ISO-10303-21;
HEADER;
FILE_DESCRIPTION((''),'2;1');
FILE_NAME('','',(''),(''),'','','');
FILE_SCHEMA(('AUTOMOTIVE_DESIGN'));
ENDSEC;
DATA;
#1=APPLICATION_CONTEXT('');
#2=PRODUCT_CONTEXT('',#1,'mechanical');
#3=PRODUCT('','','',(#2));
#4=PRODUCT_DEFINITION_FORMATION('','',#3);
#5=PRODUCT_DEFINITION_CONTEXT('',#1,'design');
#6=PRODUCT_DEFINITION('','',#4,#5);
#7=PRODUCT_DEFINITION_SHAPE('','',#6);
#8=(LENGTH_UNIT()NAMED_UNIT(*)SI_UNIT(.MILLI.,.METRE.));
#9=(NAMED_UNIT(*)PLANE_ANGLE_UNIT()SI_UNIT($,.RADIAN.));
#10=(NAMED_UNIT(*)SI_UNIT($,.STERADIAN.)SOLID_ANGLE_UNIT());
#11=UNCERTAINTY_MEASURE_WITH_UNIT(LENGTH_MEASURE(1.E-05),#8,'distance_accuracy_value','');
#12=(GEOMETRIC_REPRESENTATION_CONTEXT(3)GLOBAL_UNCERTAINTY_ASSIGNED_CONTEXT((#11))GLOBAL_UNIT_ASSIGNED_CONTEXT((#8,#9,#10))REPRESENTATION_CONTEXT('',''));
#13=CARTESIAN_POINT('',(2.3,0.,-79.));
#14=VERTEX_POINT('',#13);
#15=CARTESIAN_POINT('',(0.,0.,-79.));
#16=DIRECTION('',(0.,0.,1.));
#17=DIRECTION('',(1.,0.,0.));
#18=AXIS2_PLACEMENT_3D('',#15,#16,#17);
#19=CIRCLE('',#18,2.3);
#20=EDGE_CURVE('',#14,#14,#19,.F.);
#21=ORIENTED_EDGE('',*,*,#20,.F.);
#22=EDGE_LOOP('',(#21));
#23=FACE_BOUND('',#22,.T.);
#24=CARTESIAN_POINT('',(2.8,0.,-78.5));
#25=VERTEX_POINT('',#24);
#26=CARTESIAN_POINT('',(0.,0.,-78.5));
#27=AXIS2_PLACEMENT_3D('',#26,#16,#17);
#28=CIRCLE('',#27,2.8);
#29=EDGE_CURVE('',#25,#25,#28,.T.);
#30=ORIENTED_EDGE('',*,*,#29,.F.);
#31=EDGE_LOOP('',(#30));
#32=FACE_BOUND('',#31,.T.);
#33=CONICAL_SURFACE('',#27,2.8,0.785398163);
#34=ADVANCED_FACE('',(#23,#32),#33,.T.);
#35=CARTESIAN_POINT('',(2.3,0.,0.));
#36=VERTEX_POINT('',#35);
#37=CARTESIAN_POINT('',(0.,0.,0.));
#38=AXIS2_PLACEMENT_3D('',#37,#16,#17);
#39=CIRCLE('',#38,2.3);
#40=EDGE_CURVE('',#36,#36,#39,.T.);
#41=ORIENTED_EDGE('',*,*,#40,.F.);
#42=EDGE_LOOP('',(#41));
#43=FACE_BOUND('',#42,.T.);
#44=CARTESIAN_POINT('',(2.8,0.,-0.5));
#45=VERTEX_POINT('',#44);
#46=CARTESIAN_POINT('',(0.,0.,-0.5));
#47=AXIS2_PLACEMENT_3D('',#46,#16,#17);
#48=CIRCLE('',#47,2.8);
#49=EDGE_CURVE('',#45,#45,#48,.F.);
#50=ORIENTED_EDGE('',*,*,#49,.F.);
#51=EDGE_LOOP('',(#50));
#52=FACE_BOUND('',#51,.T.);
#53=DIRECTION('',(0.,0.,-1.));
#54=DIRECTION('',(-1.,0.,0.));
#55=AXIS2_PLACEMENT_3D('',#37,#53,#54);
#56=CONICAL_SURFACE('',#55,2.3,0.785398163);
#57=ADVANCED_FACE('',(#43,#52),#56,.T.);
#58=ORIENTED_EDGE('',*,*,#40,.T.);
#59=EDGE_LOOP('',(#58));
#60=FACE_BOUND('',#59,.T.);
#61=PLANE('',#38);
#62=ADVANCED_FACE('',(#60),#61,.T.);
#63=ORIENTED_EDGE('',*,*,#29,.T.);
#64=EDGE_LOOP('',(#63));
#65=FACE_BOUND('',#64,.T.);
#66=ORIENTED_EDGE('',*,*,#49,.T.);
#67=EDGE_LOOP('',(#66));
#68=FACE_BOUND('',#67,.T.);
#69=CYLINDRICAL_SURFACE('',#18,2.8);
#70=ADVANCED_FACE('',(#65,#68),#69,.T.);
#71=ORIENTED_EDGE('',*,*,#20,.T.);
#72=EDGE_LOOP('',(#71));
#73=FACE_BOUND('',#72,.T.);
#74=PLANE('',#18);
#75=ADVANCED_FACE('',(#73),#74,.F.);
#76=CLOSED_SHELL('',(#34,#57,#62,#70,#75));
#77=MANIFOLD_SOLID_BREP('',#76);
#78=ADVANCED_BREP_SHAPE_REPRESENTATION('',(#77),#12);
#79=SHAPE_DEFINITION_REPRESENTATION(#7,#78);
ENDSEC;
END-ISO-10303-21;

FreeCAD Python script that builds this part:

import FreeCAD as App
import Part
import Sketcher

V = App.Vector


def edges_at(feature, points):
    """Names of the edges that pass closest to the given points."""
    edges = feature.Shape.Edges
    near = lambda p: min(range(len(edges)), key=lambda i: edges[i].distToShape(Part.Vertex(*p))[0])
    return sorted({f"Edge{near(p) + 1}" for p in points})

doc = App.newDocument("Part")
body = doc.addObject("PartDesign::Body", "Body")

sketch1 = doc.addObject("Sketcher::SketchObject", "Sketch")
body.addObject(sketch1)
sketch1.AttachmentSupport = (doc.XY_Plane, [""])
sketch1.MapMode = "FlatFace"
sketch1.addGeometry(Part.Circle(V(0, 0, 0), V(0, 0, 1), 2.8), False)
sketch1.addConstraint([
    Sketcher.Constraint("Coincident", 0, 3, -1, 1),
    Sketcher.Constraint("Diameter", 0, 5.6),
])
pad1 = doc.addObject("PartDesign::Pad", "Pad")
body.addObject(pad1)
pad1.Profile = sketch1
pad1.Length = 79
pad1.Reversed = True
doc.recompute()

chamfer = doc.addObject("PartDesign::Chamfer", "Chamfer")
body.addObject(chamfer)
chamfer.Base = (pad1, edges_at(pad1, [(-2.8, 0, 0), (-2.8, 0, -79)]))
chamfer.Size = 0.5

doc.recompute()
